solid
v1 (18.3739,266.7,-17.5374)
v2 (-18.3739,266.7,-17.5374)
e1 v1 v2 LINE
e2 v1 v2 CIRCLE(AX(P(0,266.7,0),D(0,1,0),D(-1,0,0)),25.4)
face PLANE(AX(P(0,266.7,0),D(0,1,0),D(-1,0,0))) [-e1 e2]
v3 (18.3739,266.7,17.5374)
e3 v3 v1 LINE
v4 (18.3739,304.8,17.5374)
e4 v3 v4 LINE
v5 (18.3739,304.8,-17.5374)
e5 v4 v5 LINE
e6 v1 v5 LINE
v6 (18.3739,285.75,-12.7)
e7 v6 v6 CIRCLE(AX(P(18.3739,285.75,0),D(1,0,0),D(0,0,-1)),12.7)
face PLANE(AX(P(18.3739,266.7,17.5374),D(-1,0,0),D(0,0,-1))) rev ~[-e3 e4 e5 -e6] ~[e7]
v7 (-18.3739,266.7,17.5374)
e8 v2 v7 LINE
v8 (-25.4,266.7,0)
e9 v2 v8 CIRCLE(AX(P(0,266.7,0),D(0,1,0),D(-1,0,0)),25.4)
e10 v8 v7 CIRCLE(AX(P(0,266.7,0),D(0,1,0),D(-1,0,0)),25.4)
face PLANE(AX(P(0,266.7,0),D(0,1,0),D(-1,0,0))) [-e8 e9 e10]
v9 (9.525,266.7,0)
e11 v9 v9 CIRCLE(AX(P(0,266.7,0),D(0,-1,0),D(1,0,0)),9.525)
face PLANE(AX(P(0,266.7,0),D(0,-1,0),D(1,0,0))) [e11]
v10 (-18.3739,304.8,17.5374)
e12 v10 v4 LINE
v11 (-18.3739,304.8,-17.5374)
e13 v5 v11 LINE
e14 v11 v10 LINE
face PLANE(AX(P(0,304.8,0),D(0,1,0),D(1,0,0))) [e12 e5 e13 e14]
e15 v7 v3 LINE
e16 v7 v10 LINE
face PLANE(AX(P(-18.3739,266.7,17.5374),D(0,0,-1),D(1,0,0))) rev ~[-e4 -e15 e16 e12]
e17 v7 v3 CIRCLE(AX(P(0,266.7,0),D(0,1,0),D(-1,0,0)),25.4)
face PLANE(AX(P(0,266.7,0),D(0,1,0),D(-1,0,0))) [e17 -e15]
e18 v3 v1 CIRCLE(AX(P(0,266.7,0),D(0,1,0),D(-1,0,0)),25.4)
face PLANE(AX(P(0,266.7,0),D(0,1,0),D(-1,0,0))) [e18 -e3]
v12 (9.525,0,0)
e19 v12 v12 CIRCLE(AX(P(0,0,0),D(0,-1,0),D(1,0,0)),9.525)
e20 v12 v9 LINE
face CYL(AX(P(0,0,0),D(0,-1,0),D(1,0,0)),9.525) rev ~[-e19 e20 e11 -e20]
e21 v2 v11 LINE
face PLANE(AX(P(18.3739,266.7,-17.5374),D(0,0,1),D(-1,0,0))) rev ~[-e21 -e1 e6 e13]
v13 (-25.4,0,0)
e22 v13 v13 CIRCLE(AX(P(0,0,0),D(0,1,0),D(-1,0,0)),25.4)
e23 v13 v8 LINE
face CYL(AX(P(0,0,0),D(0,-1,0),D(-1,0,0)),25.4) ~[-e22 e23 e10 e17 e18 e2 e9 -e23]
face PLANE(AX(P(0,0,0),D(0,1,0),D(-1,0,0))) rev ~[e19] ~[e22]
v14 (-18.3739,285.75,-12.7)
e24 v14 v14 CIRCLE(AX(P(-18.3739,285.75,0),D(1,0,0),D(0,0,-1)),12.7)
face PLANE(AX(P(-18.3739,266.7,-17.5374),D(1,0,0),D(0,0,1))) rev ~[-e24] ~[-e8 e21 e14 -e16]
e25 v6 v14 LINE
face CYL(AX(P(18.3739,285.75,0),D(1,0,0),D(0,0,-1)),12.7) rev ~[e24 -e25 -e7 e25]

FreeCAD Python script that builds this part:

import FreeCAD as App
import Part
import Sketcher

V = App.Vector
Q = App.Units.Quantity


def add_polygon(sketch, points):
    """Adds a closed chain of lines whose ends are joined by coincident constraints."""
    first, n = sketch.GeometryCount, len(points)
    for a, b in zip(points, points[1:] + points[:1]):
        sketch.addGeometry(Part.LineSegment(App.Vector(*a, 0), App.Vector(*b, 0)), False)
    for i in range(n):
        sketch.addConstraint(Sketcher.Constraint("Coincident", first + i, 2, first + (i + 1) % n, 1))

doc = App.newDocument("Part")
body = doc.addObject("PartDesign::Body", "Body")

sketch1 = body.newObject("Sketcher::SketchObject", "Sketch")
sketch1.AttachmentSupport = (doc.getObject("XZ_Plane"), [""])
sketch1.MapMode = "FlatFace"
sketch1.addGeometry(Part.Circle(V(0, 0, 0), V(0, 0, 1), 25), False)
sketch1.addConstraint([
    Sketcher.Constraint("Coincident", 0, 3, -1, 1),
    Sketcher.Constraint("Diameter", 0, Q("2 in")),
])
pad1 = body.newObject("PartDesign::Pad", "Pad")
pad1.Profile = sketch1
pad1.Length = Q("10.5 in")
pad1.Reversed = True

sketch2 = body.newObject("Sketcher::SketchObject", "Sketch001")
sketch2.AttachmentSupport = (doc.getObject("XZ_Plane"), [""])
sketch2.MapMode = "FlatFace"
sketch2.AttachmentOffset = App.Placement(V(0, 0, -10.5 * 25.4), App.Rotation())
add_polygon(sketch2, [(18, 18), (18, -18), (-18, -18), (-18, 18)])
sketch2.addConstraint([
    Sketcher.Constraint("Vertical", 0),
    Sketcher.Constraint("Horizontal", 1),
    Sketcher.Constraint("Vertical", 2),
    Sketcher.Constraint("Horizontal", 3),
    Sketcher.Constraint("Symmetric", 0, 2, 2, 2, -1, 1),
    Sketcher.Constraint("DistanceY", 0, 2, 0, 1, Q("1.3809 in")),
    Sketcher.Constraint("DistanceX", 1, 2, 1, 1, 36.7478),
])
pad2 = body.newObject("PartDesign::Pad", "Pad001")
pad2.Profile = sketch2
pad2.Length = Q("1.5 in")
pad2.Reversed = True

sketch3 = body.newObject("Sketcher::SketchObject", "Sketch002")
sketch3.AttachmentSupport = (doc.getObject("YZ_Plane"), [""])
sketch3.MapMode = "FlatFace"
sketch3.AttachmentOffset = App.Placement(V(0, 0, 18.3739), App.Rotation())
sketch3.addGeometry(Part.Circle(V(286, 0, 0), V(0, 0, 1), 13), False)
sketch3.addConstraint([
    Sketcher.Constraint("PointOnObject", 0, 3, -1),
    Sketcher.Constraint("Diameter", 0, Q("1 in")),
    Sketcher.Constraint("DistanceX", -1, 1, 0, 3, Q("11.25 in")),
])
pocket1 = body.newObject("PartDesign::Pocket", "Pocket")
pocket1.Profile = sketch3
pocket1.Length = Q("1.5 in")

sketch4 = body.newObject("Sketcher::SketchObject", "Sketch003")
sketch4.AttachmentSupport = (doc.getObject("XZ_Plane"), [""])
sketch4.MapMode = "FlatFace"
sketch4.addGeometry(Part.Circle(V(0, 0, 0), V(0, 0, 1), 10), False)
sketch4.addConstraint([
    Sketcher.Constraint("Coincident", 0, 3, -1, 1),
    Sketcher.Constraint("Diameter", 0, Q("0.75 in")),
])
pocket2 = body.newObject("PartDesign::Pocket", "Pocket001")
pocket2.Profile = sketch4
pocket2.Length = Q("10.5 in")

doc.recompute()
